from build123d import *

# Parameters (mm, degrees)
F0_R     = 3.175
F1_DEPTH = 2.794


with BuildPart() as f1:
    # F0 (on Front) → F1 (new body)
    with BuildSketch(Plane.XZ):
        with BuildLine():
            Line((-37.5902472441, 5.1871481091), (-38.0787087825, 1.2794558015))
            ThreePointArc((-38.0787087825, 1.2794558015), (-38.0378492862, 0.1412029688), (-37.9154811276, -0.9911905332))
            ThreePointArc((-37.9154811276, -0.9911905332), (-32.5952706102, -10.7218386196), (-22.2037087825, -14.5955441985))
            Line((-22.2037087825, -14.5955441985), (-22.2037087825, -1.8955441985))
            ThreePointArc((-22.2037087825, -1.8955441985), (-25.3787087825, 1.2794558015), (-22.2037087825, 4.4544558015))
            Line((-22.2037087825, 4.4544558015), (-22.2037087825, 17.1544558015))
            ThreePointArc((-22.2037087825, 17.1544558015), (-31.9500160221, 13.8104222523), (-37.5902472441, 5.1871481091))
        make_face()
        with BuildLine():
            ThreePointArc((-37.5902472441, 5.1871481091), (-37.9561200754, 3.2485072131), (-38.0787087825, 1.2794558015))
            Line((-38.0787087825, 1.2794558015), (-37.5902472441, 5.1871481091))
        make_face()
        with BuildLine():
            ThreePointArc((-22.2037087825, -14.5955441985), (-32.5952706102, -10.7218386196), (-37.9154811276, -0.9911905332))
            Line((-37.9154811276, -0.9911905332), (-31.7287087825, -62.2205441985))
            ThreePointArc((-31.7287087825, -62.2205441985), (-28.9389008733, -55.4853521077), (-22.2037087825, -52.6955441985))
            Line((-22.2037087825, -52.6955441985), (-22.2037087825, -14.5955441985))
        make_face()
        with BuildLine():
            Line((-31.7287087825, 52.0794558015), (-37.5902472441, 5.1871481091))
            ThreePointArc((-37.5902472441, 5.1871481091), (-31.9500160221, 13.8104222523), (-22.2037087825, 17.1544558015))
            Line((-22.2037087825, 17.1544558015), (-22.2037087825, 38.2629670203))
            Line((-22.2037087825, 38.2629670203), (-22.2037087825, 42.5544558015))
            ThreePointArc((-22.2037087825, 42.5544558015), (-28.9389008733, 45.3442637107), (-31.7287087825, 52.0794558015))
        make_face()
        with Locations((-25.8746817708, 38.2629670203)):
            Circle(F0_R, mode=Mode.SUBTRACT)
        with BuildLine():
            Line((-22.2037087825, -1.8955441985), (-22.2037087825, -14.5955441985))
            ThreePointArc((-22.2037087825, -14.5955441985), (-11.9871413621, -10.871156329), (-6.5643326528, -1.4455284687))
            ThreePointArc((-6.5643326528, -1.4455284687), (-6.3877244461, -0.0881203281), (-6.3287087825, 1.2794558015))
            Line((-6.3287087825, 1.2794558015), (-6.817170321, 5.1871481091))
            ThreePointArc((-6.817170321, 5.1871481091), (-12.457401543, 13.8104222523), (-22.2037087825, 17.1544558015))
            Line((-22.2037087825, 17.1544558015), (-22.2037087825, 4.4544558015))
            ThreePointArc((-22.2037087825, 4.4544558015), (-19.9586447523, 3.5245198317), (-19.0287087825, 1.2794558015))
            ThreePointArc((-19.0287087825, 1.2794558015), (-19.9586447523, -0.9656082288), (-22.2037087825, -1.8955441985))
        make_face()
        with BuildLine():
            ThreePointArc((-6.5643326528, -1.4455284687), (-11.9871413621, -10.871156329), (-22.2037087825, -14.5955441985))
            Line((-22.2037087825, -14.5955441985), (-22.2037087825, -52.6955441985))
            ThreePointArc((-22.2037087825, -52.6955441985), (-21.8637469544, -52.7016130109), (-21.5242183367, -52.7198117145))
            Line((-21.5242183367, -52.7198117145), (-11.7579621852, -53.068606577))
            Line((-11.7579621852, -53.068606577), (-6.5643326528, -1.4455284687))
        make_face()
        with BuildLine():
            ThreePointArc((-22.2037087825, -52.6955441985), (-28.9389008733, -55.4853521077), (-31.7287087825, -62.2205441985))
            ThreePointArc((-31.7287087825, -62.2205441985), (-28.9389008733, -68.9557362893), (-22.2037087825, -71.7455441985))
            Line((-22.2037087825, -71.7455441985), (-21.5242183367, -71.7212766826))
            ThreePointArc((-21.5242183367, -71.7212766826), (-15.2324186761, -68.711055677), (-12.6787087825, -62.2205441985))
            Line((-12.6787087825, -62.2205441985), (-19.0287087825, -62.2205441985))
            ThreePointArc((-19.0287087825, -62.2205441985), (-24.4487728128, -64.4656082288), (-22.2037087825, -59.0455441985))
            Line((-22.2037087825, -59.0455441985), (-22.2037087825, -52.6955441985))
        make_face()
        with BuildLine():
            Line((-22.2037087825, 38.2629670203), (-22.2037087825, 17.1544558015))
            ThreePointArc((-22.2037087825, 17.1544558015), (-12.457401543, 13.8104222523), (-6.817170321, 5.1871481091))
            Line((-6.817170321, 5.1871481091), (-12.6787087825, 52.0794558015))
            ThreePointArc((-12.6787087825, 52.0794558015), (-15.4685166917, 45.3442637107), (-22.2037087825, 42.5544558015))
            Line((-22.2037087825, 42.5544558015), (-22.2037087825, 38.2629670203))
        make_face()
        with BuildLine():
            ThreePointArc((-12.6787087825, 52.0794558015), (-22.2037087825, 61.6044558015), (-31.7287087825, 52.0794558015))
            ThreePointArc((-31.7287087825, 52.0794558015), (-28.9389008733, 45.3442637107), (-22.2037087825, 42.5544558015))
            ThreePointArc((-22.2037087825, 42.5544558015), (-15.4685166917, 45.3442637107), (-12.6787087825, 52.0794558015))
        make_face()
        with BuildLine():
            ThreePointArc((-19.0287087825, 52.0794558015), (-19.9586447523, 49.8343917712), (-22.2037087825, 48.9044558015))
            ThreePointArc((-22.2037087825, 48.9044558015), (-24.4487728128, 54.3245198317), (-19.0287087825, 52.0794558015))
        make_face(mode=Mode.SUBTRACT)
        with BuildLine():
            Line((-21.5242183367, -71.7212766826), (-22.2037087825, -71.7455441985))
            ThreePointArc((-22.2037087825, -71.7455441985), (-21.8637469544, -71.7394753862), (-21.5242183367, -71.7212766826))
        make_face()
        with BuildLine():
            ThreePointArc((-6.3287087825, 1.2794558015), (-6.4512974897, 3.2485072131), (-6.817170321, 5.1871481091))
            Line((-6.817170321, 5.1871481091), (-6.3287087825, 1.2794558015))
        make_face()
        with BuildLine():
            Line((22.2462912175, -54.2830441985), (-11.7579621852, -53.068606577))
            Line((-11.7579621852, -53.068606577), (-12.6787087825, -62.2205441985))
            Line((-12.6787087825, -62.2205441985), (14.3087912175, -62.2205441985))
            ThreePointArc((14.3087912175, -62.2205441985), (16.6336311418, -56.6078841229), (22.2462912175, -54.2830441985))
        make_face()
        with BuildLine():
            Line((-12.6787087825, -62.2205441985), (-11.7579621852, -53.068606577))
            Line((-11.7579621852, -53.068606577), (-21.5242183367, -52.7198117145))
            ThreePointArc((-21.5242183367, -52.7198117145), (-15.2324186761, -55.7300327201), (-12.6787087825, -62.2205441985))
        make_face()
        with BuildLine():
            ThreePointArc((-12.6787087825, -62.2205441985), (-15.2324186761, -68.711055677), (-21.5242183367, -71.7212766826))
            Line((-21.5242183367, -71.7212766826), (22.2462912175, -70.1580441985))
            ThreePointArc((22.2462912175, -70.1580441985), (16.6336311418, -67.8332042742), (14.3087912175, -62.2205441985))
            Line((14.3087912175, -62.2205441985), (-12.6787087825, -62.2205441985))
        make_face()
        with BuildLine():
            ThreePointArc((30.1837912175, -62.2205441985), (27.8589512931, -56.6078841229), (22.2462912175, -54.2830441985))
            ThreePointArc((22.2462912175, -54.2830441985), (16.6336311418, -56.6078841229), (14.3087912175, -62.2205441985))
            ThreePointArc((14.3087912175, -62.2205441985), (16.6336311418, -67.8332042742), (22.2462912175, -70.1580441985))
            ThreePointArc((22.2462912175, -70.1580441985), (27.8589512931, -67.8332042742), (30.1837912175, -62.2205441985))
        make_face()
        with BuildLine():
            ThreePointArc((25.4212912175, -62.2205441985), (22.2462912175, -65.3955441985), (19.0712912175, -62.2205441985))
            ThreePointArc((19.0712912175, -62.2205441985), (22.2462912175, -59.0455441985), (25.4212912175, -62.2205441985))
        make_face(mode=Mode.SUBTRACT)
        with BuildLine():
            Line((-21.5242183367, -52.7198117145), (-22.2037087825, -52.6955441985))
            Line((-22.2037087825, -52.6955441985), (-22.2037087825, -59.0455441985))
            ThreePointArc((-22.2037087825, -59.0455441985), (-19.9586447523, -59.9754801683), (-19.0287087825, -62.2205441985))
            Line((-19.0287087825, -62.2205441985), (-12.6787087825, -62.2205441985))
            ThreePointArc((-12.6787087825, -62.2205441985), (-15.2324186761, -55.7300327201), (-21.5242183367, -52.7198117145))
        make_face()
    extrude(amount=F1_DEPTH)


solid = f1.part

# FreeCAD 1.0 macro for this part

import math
import FreeCAD as App
import Part
import Sketcher
from FreeCAD import Vector
Q = App.Units.Quantity

doc = App.newDocument("Part")
params = doc.addObject("Spreadsheet::Sheet", "Params")
for row, (alias, value) in enumerate([
    ("sketch1_diameter", "0.25 in"),
    ("sketch1_radius", "0.375 in"),
    ("sketch1_radius2", "0.3125 in"),
    ("sketch1_radius3", "0.625 in"),
    ("pad1_length", "0.11 in"),
], start=1):
    params.set(f"A{row}", alias)
    params.set(f"B{row}", "=" + value)
    params.setAlias(f"B{row}", alias)

body = doc.addObject("PartDesign::Body", "Body")

# Sketch on XZ plane
sketch1 = body.newObject("Sketcher::SketchObject", "Sketch")
sketch1.AttachmentSupport = (doc.getObject("XZ_Plane"), [""])
sketch1.MapMode = "FlatFace"
sketch1.addGeometry([
    Part.ArcOfCircle(Part.Circle(Vector(-22.2, -62.2, 0), Vector(0, 0, 1), 9.5), math.radians(-90), math.radians(-85.91)),  # 0
    Part.LineSegment(Vector(-21.5, -71.7, 0), Vector(22.2, -70.2, 0)),  # 1
    Part.ArcOfCircle(Part.Circle(Vector(22.2, -62.2, 0), Vector(0, 0, 1), 7.9), math.radians(-90), math.radians(0)),  # 2
    Part.ArcOfCircle(Part.Circle(Vector(22.2, -62.2, 0), Vector(0, 0, 1), 7.9), math.radians(0), math.radians(90)),  # 3
    Part.LineSegment(Vector(22.2, -54.3, 0), Vector(-11.8, -53.1, 0)),  # 4
    Part.LineSegment(Vector(-11.8, -53.1, 0), Vector(-6.6, -1.4, 0)),  # 5
    Part.ArcOfCircle(Part.Circle(Vector(-22.2, 1.3, 0), Vector(0, 0, 1), 15.9), math.radians(-9.88), math.radians(0)),  # 6
    Part.ArcOfCircle(Part.Circle(Vector(-22.2, 1.3, 0), Vector(0, 0, 1), 15.9), math.radians(0), math.radians(14.25)),  # 7
    Part.LineSegment(Vector(-6.8, 5.2, 0), Vector(-12.7, 52.1, 0)),  # 8
    Part.ArcOfCircle(Part.Circle(Vector(-22.2, 52.1, 0), Vector(0, 0, 1), 9.5), math.radians(0), math.radians(180)),  # 9
    Part.LineSegment(Vector(-31.7, 52.1, 0), Vector(-37.6, 5.2, 0)),  # 10
    Part.ArcOfCircle(Part.Circle(Vector(-22.2, 1.3, 0), Vector(0, 0, 1), 15.9), math.radians(165.75), math.radians(180)),  # 11
    Part.ArcOfCircle(Part.Circle(Vector(-22.2, 1.3, 0), Vector(0, 0, 1), 15.9), math.radians(180), math.radians(188.22)),  # 12
    Part.LineSegment(Vector(-37.9, -1, 0), Vector(-31.7, -62.2, 0)),  # 13
    Part.ArcOfCircle(Part.Circle(Vector(-22.2, -62.2, 0), Vector(0, 0, 1), 9.5), math.radians(-180), math.radians(-90)),  # 14
    Part.ArcOfCircle(Part.Circle(Vector(-22.2, -62.2, 0), Vector(0, 0, 1), 9.5), math.radians(85.91), math.radians(90)),  # 15
    Part.LineSegment(Vector(-21.5, -52.7, 0), Vector(-22.2, -52.7, 0)),  # 16
    Part.ArcOfCircle(Part.Circle(Vector(-22.2, -62.2, 0), Vector(0, 0, 1), 3.2), math.radians(90), math.radians(360)),  # 17
    Part.ArcOfCircle(Part.Circle(Vector(-22.2, -62.2, 0), Vector(0, 0, 1), 3.2), math.radians(0), math.radians(90)),  # 18
    Part.Circle(Vector(22.2, -62.2, 0), Vector(0, 0, 1), 3.2),  # 19
    Part.ArcOfCircle(Part.Circle(Vector(-22.2, 1.3, 0), Vector(0, 0, 1), 3.2), math.radians(90), math.radians(270)),  # 20
    Part.ArcOfCircle(Part.Circle(Vector(-22.2, 1.3, 0), Vector(0, 0, 1), 3.2), math.radians(0), math.radians(90)),  # 21
    Part.ArcOfCircle(Part.Circle(Vector(-22.2, 1.3, 0), Vector(0, 0, 1), 3.2), math.radians(-90), math.radians(0)),  # 22
    Part.Circle(Vector(-25.9, 38.3, 0), Vector(0, 0, 1), 3.2),  # 23
    Part.ArcOfCircle(Part.Circle(Vector(-22.2, 52.1, 0), Vector(0, 0, 1), 3.2), math.radians(0), math.radians(270)),  # 24
    Part.ArcOfCircle(Part.Circle(Vector(-22.2, 52.1, 0), Vector(0, 0, 1), 3.2), math.radians(-90), math.radians(0)),  # 25
], False)
sketch1.addConstraint([
    Sketcher.Constraint("Coincident", 0, 2, 1, 1),
    Sketcher.Constraint("Coincident", 1, 2, 2, 1),
    Sketcher.Constraint("Tangent", 2, 2, 3, 1),
    Sketcher.Constraint("Coincident", 3, 2, 4, 1),
    Sketcher.Constraint("Coincident", 4, 2, 5, 1),
    Sketcher.Constraint("Coincident", 5, 2, 6, 1),
    Sketcher.Constraint("Tangent", 6, 2, 7, 1),
    Sketcher.Constraint("Coincident", 7, 2, 8, 1),
    Sketcher.Constraint("Coincident", 8, 2, 9, 1),
    Sketcher.Constraint("Coincident", 9, 2, 10, 1),
    Sketcher.Constraint("Coincident", 10, 2, 11, 1),
    Sketcher.Constraint("Tangent", 11, 2, 12, 1),
    Sketcher.Constraint("Coincident", 12, 2, 13, 1),
    Sketcher.Constraint("Coincident", 13, 2, 14, 1),
    Sketcher.Constraint("Tangent", 14, 2, 0, 1),
    Sketcher.Constraint("Coincident", 15, 1, 16, 1),
    Sketcher.Constraint("Coincident", 16, 2, 15, 2),
    Sketcher.Constraint("Tangent", 17, 1, 18, 2),
    Sketcher.Constraint("Coincident", 18, 1, 17, 2),
    Sketcher.Constraint("Tangent", 20, 1, 21, 2),
    Sketcher.Constraint("Tangent", 21, 1, 22, 2),
    Sketcher.Constraint("Tangent", 22, 1, 20, 2),
    Sketcher.Constraint("Tangent", 24, 1, 25, 2),
    Sketcher.Constraint("Coincident", 25, 1, 24, 2),
    Sketcher.Constraint("Coincident", 11, 3, 6, 3),
    Sketcher.Constraint("Coincident", 15, 3, 0, 3),
    Sketcher.Constraint("Coincident", 17, 3, 0, 3),
    Sketcher.Constraint("Coincident", 19, 3, 2, 3),
    Sketcher.Constraint("Coincident", 20, 3, 6, 3),
    Sketcher.Constraint("Coincident", 24, 3, 9, 3),
    Sketcher.Constraint("Equal", 2, 3),
    Sketcher.Constraint("Equal", 6, 7),
    Sketcher.Constraint("Equal", 0, 9),
    Sketcher.Constraint("Equal", 7, 11),
    Sketcher.Constraint("Equal", 11, 12),
    Sketcher.Constraint("Equal", 9, 14),
    Sketcher.Constraint("Equal", 14, 15),
    Sketcher.Constraint("Equal", 18, 19),
    Sketcher.Constraint("Equal", 19, 20),
    Sketcher.Constraint("Equal", 22, 23),
    Sketcher.Constraint("Equal", 23, 24),
    Sketcher.Constraint("Parallel", 4, 16),
    Sketcher.Constraint("Horizontal", 0, 3, 2, 3),
    Sketcher.Constraint("Horizontal", 19, 3, 2, 2),
    Sketcher.Constraint("Horizontal", 22, 3, 6, 2),
    Sketcher.Constraint("Horizontal", 25, 3, 8, 2),
    Sketcher.Constraint("Horizontal", 8, 2, 9, 2),
    Sketcher.Constraint("Horizontal", 7, 2, 10, 2),
    Sketcher.Constraint("Horizontal", 6, 2, 11, 2),
    Sketcher.Constraint("Horizontal", 2, 2, 13, 2),
    Sketcher.Constraint("Horizontal", 13, 2, 18, 1),
    Sketcher.Constraint("Horizontal", 11, 2, 21, 1),
    Sketcher.Constraint("Horizontal", 9, 2, 24, 1),
    Sketcher.Constraint("Vertical", 0, 3, 6, 3),
    Sketcher.Constraint("Vertical", 7, 3, 9, 3),
    Sketcher.Constraint("Vertical", 19, 3, 1, 2),
    Sketcher.Constraint("Vertical", 1, 2, 3, 2),
    Sketcher.Constraint("Vertical", 25, 3, 14, 2),
    Sketcher.Constraint("Vertical", 0, 2, 15, 1),
    Sketcher.Constraint("Vertical", 14, 2, 16, 2),
    Sketcher.Constraint("Vertical", 16, 2, 17, 1),
    Sketcher.Constraint("Vertical", 17, 1, 20, 1),
    Sketcher.Constraint("Vertical", 20, 1, 22, 1),
    Sketcher.Constraint("Vertical", 22, 1, 25, 1),
    Sketcher.Constraint("Diameter", 19, Q("0.25 in")),
    Sketcher.Constraint("Radius", 0, Q("0.375 in")),
    Sketcher.Constraint("Radius", 2, Q("0.3125 in")),
    Sketcher.Constraint("Radius", 6, Q("0.625 in")),
    Sketcher.Constraint("DistanceY", 6, 3, 9, 3, Q("2 in")),
    Sketcher.Constraint("DistanceY", 0, 3, 6, 3, Q("2.5 in")),
    Sketcher.Constraint("DistanceX", 0, 3, 2, 3, Q("1.75 in")),
    Sketcher.Constraint("DistanceX", 0, 3, -1, 1, 22.203709),
    Sketcher.Constraint("DistanceX", 23, 3, -1, 1, 25.874682),
    Sketcher.Constraint("DistanceX", 0, 2, -1, 1, 21.524218),
    Sketcher.Constraint("DistanceY", 5, 2, -1, 1, 1.445528),
    Sketcher.Constraint("DistanceX", 7, 2, -1, 1, 6.81717),
    Sketcher.Constraint("DistanceY", -1, 1, 7, 2, 5.187148),
    Sketcher.Constraint("DistanceX", 12, 2, -1, 1, 37.915481),
    Sketcher.Constraint("DistanceY", 23, 3, 9, 3, 13.816489),
    Sketcher.Constraint("Distance", 4, 34.025933),
])
sketch1.setExpression("Constraints[64]", "Params.sketch1_diameter")
sketch1.setExpression("Constraints[65]", "Params.sketch1_radius")
sketch1.setExpression("Constraints[66]", "Params.sketch1_radius2")
sketch1.setExpression("Constraints[67]", "Params.sketch1_radius3")
pad1 = body.newObject("PartDesign::Pad", "Pad")
pad1.Profile = sketch1
pad1.setExpression("Length", "Params.pad1_length")

doc.recompute()
